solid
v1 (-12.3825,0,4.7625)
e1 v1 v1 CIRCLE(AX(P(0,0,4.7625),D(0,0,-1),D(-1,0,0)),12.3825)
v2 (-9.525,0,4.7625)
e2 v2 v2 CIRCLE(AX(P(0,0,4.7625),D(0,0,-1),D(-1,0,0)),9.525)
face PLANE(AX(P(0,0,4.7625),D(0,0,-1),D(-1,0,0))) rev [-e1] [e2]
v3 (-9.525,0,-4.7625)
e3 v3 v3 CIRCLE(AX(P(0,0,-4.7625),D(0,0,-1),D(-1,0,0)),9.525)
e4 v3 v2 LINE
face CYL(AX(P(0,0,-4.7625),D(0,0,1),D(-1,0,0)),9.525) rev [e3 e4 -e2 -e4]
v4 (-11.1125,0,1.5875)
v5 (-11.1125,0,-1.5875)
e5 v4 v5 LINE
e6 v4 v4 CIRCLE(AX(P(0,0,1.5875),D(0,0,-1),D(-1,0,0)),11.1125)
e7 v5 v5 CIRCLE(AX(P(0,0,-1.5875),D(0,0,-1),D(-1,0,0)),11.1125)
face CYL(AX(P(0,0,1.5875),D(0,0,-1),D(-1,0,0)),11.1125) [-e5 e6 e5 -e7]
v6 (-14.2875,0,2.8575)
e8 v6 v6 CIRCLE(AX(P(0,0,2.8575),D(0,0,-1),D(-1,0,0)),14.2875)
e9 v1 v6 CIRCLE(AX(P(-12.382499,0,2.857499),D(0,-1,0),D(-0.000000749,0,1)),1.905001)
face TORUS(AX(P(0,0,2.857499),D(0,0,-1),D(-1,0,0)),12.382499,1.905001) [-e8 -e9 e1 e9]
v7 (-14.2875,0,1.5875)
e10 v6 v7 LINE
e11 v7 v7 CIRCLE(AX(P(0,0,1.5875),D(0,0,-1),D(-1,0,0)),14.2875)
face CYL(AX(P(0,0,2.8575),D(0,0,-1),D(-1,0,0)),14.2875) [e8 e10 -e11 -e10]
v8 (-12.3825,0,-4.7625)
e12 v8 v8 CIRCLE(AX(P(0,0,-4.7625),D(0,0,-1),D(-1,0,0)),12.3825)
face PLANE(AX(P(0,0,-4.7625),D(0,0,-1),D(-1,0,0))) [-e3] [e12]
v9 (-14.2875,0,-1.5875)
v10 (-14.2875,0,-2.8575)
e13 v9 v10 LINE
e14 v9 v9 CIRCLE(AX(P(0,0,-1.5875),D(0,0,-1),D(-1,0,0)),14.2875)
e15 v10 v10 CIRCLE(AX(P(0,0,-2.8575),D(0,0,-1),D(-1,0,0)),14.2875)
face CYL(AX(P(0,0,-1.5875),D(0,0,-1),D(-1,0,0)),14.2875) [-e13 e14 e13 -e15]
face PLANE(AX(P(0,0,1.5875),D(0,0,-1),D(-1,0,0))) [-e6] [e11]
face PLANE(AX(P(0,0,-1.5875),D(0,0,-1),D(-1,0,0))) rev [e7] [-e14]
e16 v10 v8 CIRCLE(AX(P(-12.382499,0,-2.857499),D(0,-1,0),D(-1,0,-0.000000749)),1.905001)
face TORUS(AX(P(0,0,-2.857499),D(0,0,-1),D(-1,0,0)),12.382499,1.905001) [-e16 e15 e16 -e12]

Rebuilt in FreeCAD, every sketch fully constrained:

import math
import FreeCAD as App
import Part
import Sketcher

V = App.Vector
Q = App.Units.Quantity

doc = App.newDocument("Part")
params = doc.addObject("Spreadsheet::Sheet", "Params")
for row, (alias, value) in enumerate([
    ("sketch1_radius", "0.0750001 in"),
    ("sketch1_height", "0.05 in"),
    ("revolution_angle", "360 deg"),
], start=1):
    params.set(f"A{row}", alias)
    params.set(f"B{row}", "=" + value)
    params.setAlias(f"B{row}", alias)

body = doc.addObject("PartDesign::Body", "Body")

sketch1 = body.newObject("Sketcher::SketchObject", "Sketch")
sketch1.AttachmentSupport = (doc.getObject("XZ_Plane"), [""])
sketch1.MapMode = "FlatFace"
sketch1.addGeometry([
    Part.LineSegment(V(-9.525, 4.7625, 0), V(-12.3825, 4.7625, 0)),
    Part.ArcOfCircle(Part.Circle(V(-12.382499, 2.857499, 0), V(0, 0, 1), 1.905001), math.radians(90.000043), math.radians(179.999957)),
    Part.LineSegment(V(-14.2875, 2.8575, 0), V(-14.2875, 1.5875, 0)),
    Part.LineSegment(V(-14.2875, 1.5875, 0), V(-11.1125, 1.5875, 0)),
    Part.LineSegment(V(-11.1125, 1.5875, 0), V(-11.1125, -1.5875, 0)),
    Part.LineSegment(V(-11.1125, -1.5875, 0), V(-14.2875, -1.5875, 0)),
    Part.LineSegment(V(-14.2875, -1.5875, 0), V(-14.2875, -2.8575, 0)),
    Part.ArcOfCircle(Part.Circle(V(-12.382499, -2.857499, 0), V(0, 0, 1), 1.905001), math.radians(-179.999957), math.radians(-90.000043)),
    Part.LineSegment(V(-12.3825, -4.7625, 0), V(-9.525, -4.7625, 0)),
    Part.LineSegment(V(-9.525, -4.7625, 0), V(-9.525, 4.7625, 0)),
], False)
sketch1.addConstraint([
    Sketcher.Constraint("Tangent", 0, 2, 1, 1),
    Sketcher.Constraint("Tangent", 1, 2, 2, 1),
    Sketcher.Constraint("Coincident", 2, 2, 3, 1),
    Sketcher.Constraint("Coincident", 3, 2, 4, 1),
    Sketcher.Constraint("Coincident", 4, 2, 5, 1),
    Sketcher.Constraint("Coincident", 5, 2, 6, 1),
    Sketcher.Constraint("Tangent", 6, 2, 7, 1),
    Sketcher.Constraint("Tangent", 7, 2, 8, 1),
    Sketcher.Constraint("Coincident", 8, 2, 9, 1),
    Sketcher.Constraint("Coincident", 9, 2, 0, 1),
    Sketcher.Constraint("Horizontal", 0),
    Sketcher.Constraint("Vertical", 2),
    Sketcher.Constraint("Horizontal", 3),
    Sketcher.Constraint("Vertical", 4),
    Sketcher.Constraint("Horizontal", 5),
    Sketcher.Constraint("Vertical", 6),
    Sketcher.Constraint("Horizontal", 8),
    Sketcher.Constraint("Vertical", 9),
    Sketcher.Constraint("Equal", 1, 7),
    Sketcher.Constraint("Symmetric", 1, 3, 7, 3, -1),
    Sketcher.Constraint("Equal", 5, 4),
    Sketcher.Constraint("Equal", 2, 6),
    Sketcher.Constraint("Radius", 1, Q("0.0750001 in")),
    Sketcher.Constraint("DistanceY", 2, 2, 2, 1, Q("0.05 in")),
    Sketcher.Constraint("DistanceY", 7, 3, 0, 2, Q("0.2999999 in")),
    Sketcher.Constraint("DistanceX", 0, 2, 0, 1, Q("0.1125 in")),
    Sketcher.Constraint("DistanceX", 1, 2, -1, 1, Q("0.5625 in")),
])
sketch1.setExpression("Constraints[22]", "Params.sketch1_radius")
sketch1.setExpression("Constraints[23]", "Params.sketch1_height")
revolution = body.newObject("PartDesign::Revolution", "Revolution")
revolution.Profile = sketch1
revolution.ReferenceAxis = (sketch1, ["V_Axis"])
revolution.setExpression("Angle", "Params.revolution_angle")

doc.recompute()
